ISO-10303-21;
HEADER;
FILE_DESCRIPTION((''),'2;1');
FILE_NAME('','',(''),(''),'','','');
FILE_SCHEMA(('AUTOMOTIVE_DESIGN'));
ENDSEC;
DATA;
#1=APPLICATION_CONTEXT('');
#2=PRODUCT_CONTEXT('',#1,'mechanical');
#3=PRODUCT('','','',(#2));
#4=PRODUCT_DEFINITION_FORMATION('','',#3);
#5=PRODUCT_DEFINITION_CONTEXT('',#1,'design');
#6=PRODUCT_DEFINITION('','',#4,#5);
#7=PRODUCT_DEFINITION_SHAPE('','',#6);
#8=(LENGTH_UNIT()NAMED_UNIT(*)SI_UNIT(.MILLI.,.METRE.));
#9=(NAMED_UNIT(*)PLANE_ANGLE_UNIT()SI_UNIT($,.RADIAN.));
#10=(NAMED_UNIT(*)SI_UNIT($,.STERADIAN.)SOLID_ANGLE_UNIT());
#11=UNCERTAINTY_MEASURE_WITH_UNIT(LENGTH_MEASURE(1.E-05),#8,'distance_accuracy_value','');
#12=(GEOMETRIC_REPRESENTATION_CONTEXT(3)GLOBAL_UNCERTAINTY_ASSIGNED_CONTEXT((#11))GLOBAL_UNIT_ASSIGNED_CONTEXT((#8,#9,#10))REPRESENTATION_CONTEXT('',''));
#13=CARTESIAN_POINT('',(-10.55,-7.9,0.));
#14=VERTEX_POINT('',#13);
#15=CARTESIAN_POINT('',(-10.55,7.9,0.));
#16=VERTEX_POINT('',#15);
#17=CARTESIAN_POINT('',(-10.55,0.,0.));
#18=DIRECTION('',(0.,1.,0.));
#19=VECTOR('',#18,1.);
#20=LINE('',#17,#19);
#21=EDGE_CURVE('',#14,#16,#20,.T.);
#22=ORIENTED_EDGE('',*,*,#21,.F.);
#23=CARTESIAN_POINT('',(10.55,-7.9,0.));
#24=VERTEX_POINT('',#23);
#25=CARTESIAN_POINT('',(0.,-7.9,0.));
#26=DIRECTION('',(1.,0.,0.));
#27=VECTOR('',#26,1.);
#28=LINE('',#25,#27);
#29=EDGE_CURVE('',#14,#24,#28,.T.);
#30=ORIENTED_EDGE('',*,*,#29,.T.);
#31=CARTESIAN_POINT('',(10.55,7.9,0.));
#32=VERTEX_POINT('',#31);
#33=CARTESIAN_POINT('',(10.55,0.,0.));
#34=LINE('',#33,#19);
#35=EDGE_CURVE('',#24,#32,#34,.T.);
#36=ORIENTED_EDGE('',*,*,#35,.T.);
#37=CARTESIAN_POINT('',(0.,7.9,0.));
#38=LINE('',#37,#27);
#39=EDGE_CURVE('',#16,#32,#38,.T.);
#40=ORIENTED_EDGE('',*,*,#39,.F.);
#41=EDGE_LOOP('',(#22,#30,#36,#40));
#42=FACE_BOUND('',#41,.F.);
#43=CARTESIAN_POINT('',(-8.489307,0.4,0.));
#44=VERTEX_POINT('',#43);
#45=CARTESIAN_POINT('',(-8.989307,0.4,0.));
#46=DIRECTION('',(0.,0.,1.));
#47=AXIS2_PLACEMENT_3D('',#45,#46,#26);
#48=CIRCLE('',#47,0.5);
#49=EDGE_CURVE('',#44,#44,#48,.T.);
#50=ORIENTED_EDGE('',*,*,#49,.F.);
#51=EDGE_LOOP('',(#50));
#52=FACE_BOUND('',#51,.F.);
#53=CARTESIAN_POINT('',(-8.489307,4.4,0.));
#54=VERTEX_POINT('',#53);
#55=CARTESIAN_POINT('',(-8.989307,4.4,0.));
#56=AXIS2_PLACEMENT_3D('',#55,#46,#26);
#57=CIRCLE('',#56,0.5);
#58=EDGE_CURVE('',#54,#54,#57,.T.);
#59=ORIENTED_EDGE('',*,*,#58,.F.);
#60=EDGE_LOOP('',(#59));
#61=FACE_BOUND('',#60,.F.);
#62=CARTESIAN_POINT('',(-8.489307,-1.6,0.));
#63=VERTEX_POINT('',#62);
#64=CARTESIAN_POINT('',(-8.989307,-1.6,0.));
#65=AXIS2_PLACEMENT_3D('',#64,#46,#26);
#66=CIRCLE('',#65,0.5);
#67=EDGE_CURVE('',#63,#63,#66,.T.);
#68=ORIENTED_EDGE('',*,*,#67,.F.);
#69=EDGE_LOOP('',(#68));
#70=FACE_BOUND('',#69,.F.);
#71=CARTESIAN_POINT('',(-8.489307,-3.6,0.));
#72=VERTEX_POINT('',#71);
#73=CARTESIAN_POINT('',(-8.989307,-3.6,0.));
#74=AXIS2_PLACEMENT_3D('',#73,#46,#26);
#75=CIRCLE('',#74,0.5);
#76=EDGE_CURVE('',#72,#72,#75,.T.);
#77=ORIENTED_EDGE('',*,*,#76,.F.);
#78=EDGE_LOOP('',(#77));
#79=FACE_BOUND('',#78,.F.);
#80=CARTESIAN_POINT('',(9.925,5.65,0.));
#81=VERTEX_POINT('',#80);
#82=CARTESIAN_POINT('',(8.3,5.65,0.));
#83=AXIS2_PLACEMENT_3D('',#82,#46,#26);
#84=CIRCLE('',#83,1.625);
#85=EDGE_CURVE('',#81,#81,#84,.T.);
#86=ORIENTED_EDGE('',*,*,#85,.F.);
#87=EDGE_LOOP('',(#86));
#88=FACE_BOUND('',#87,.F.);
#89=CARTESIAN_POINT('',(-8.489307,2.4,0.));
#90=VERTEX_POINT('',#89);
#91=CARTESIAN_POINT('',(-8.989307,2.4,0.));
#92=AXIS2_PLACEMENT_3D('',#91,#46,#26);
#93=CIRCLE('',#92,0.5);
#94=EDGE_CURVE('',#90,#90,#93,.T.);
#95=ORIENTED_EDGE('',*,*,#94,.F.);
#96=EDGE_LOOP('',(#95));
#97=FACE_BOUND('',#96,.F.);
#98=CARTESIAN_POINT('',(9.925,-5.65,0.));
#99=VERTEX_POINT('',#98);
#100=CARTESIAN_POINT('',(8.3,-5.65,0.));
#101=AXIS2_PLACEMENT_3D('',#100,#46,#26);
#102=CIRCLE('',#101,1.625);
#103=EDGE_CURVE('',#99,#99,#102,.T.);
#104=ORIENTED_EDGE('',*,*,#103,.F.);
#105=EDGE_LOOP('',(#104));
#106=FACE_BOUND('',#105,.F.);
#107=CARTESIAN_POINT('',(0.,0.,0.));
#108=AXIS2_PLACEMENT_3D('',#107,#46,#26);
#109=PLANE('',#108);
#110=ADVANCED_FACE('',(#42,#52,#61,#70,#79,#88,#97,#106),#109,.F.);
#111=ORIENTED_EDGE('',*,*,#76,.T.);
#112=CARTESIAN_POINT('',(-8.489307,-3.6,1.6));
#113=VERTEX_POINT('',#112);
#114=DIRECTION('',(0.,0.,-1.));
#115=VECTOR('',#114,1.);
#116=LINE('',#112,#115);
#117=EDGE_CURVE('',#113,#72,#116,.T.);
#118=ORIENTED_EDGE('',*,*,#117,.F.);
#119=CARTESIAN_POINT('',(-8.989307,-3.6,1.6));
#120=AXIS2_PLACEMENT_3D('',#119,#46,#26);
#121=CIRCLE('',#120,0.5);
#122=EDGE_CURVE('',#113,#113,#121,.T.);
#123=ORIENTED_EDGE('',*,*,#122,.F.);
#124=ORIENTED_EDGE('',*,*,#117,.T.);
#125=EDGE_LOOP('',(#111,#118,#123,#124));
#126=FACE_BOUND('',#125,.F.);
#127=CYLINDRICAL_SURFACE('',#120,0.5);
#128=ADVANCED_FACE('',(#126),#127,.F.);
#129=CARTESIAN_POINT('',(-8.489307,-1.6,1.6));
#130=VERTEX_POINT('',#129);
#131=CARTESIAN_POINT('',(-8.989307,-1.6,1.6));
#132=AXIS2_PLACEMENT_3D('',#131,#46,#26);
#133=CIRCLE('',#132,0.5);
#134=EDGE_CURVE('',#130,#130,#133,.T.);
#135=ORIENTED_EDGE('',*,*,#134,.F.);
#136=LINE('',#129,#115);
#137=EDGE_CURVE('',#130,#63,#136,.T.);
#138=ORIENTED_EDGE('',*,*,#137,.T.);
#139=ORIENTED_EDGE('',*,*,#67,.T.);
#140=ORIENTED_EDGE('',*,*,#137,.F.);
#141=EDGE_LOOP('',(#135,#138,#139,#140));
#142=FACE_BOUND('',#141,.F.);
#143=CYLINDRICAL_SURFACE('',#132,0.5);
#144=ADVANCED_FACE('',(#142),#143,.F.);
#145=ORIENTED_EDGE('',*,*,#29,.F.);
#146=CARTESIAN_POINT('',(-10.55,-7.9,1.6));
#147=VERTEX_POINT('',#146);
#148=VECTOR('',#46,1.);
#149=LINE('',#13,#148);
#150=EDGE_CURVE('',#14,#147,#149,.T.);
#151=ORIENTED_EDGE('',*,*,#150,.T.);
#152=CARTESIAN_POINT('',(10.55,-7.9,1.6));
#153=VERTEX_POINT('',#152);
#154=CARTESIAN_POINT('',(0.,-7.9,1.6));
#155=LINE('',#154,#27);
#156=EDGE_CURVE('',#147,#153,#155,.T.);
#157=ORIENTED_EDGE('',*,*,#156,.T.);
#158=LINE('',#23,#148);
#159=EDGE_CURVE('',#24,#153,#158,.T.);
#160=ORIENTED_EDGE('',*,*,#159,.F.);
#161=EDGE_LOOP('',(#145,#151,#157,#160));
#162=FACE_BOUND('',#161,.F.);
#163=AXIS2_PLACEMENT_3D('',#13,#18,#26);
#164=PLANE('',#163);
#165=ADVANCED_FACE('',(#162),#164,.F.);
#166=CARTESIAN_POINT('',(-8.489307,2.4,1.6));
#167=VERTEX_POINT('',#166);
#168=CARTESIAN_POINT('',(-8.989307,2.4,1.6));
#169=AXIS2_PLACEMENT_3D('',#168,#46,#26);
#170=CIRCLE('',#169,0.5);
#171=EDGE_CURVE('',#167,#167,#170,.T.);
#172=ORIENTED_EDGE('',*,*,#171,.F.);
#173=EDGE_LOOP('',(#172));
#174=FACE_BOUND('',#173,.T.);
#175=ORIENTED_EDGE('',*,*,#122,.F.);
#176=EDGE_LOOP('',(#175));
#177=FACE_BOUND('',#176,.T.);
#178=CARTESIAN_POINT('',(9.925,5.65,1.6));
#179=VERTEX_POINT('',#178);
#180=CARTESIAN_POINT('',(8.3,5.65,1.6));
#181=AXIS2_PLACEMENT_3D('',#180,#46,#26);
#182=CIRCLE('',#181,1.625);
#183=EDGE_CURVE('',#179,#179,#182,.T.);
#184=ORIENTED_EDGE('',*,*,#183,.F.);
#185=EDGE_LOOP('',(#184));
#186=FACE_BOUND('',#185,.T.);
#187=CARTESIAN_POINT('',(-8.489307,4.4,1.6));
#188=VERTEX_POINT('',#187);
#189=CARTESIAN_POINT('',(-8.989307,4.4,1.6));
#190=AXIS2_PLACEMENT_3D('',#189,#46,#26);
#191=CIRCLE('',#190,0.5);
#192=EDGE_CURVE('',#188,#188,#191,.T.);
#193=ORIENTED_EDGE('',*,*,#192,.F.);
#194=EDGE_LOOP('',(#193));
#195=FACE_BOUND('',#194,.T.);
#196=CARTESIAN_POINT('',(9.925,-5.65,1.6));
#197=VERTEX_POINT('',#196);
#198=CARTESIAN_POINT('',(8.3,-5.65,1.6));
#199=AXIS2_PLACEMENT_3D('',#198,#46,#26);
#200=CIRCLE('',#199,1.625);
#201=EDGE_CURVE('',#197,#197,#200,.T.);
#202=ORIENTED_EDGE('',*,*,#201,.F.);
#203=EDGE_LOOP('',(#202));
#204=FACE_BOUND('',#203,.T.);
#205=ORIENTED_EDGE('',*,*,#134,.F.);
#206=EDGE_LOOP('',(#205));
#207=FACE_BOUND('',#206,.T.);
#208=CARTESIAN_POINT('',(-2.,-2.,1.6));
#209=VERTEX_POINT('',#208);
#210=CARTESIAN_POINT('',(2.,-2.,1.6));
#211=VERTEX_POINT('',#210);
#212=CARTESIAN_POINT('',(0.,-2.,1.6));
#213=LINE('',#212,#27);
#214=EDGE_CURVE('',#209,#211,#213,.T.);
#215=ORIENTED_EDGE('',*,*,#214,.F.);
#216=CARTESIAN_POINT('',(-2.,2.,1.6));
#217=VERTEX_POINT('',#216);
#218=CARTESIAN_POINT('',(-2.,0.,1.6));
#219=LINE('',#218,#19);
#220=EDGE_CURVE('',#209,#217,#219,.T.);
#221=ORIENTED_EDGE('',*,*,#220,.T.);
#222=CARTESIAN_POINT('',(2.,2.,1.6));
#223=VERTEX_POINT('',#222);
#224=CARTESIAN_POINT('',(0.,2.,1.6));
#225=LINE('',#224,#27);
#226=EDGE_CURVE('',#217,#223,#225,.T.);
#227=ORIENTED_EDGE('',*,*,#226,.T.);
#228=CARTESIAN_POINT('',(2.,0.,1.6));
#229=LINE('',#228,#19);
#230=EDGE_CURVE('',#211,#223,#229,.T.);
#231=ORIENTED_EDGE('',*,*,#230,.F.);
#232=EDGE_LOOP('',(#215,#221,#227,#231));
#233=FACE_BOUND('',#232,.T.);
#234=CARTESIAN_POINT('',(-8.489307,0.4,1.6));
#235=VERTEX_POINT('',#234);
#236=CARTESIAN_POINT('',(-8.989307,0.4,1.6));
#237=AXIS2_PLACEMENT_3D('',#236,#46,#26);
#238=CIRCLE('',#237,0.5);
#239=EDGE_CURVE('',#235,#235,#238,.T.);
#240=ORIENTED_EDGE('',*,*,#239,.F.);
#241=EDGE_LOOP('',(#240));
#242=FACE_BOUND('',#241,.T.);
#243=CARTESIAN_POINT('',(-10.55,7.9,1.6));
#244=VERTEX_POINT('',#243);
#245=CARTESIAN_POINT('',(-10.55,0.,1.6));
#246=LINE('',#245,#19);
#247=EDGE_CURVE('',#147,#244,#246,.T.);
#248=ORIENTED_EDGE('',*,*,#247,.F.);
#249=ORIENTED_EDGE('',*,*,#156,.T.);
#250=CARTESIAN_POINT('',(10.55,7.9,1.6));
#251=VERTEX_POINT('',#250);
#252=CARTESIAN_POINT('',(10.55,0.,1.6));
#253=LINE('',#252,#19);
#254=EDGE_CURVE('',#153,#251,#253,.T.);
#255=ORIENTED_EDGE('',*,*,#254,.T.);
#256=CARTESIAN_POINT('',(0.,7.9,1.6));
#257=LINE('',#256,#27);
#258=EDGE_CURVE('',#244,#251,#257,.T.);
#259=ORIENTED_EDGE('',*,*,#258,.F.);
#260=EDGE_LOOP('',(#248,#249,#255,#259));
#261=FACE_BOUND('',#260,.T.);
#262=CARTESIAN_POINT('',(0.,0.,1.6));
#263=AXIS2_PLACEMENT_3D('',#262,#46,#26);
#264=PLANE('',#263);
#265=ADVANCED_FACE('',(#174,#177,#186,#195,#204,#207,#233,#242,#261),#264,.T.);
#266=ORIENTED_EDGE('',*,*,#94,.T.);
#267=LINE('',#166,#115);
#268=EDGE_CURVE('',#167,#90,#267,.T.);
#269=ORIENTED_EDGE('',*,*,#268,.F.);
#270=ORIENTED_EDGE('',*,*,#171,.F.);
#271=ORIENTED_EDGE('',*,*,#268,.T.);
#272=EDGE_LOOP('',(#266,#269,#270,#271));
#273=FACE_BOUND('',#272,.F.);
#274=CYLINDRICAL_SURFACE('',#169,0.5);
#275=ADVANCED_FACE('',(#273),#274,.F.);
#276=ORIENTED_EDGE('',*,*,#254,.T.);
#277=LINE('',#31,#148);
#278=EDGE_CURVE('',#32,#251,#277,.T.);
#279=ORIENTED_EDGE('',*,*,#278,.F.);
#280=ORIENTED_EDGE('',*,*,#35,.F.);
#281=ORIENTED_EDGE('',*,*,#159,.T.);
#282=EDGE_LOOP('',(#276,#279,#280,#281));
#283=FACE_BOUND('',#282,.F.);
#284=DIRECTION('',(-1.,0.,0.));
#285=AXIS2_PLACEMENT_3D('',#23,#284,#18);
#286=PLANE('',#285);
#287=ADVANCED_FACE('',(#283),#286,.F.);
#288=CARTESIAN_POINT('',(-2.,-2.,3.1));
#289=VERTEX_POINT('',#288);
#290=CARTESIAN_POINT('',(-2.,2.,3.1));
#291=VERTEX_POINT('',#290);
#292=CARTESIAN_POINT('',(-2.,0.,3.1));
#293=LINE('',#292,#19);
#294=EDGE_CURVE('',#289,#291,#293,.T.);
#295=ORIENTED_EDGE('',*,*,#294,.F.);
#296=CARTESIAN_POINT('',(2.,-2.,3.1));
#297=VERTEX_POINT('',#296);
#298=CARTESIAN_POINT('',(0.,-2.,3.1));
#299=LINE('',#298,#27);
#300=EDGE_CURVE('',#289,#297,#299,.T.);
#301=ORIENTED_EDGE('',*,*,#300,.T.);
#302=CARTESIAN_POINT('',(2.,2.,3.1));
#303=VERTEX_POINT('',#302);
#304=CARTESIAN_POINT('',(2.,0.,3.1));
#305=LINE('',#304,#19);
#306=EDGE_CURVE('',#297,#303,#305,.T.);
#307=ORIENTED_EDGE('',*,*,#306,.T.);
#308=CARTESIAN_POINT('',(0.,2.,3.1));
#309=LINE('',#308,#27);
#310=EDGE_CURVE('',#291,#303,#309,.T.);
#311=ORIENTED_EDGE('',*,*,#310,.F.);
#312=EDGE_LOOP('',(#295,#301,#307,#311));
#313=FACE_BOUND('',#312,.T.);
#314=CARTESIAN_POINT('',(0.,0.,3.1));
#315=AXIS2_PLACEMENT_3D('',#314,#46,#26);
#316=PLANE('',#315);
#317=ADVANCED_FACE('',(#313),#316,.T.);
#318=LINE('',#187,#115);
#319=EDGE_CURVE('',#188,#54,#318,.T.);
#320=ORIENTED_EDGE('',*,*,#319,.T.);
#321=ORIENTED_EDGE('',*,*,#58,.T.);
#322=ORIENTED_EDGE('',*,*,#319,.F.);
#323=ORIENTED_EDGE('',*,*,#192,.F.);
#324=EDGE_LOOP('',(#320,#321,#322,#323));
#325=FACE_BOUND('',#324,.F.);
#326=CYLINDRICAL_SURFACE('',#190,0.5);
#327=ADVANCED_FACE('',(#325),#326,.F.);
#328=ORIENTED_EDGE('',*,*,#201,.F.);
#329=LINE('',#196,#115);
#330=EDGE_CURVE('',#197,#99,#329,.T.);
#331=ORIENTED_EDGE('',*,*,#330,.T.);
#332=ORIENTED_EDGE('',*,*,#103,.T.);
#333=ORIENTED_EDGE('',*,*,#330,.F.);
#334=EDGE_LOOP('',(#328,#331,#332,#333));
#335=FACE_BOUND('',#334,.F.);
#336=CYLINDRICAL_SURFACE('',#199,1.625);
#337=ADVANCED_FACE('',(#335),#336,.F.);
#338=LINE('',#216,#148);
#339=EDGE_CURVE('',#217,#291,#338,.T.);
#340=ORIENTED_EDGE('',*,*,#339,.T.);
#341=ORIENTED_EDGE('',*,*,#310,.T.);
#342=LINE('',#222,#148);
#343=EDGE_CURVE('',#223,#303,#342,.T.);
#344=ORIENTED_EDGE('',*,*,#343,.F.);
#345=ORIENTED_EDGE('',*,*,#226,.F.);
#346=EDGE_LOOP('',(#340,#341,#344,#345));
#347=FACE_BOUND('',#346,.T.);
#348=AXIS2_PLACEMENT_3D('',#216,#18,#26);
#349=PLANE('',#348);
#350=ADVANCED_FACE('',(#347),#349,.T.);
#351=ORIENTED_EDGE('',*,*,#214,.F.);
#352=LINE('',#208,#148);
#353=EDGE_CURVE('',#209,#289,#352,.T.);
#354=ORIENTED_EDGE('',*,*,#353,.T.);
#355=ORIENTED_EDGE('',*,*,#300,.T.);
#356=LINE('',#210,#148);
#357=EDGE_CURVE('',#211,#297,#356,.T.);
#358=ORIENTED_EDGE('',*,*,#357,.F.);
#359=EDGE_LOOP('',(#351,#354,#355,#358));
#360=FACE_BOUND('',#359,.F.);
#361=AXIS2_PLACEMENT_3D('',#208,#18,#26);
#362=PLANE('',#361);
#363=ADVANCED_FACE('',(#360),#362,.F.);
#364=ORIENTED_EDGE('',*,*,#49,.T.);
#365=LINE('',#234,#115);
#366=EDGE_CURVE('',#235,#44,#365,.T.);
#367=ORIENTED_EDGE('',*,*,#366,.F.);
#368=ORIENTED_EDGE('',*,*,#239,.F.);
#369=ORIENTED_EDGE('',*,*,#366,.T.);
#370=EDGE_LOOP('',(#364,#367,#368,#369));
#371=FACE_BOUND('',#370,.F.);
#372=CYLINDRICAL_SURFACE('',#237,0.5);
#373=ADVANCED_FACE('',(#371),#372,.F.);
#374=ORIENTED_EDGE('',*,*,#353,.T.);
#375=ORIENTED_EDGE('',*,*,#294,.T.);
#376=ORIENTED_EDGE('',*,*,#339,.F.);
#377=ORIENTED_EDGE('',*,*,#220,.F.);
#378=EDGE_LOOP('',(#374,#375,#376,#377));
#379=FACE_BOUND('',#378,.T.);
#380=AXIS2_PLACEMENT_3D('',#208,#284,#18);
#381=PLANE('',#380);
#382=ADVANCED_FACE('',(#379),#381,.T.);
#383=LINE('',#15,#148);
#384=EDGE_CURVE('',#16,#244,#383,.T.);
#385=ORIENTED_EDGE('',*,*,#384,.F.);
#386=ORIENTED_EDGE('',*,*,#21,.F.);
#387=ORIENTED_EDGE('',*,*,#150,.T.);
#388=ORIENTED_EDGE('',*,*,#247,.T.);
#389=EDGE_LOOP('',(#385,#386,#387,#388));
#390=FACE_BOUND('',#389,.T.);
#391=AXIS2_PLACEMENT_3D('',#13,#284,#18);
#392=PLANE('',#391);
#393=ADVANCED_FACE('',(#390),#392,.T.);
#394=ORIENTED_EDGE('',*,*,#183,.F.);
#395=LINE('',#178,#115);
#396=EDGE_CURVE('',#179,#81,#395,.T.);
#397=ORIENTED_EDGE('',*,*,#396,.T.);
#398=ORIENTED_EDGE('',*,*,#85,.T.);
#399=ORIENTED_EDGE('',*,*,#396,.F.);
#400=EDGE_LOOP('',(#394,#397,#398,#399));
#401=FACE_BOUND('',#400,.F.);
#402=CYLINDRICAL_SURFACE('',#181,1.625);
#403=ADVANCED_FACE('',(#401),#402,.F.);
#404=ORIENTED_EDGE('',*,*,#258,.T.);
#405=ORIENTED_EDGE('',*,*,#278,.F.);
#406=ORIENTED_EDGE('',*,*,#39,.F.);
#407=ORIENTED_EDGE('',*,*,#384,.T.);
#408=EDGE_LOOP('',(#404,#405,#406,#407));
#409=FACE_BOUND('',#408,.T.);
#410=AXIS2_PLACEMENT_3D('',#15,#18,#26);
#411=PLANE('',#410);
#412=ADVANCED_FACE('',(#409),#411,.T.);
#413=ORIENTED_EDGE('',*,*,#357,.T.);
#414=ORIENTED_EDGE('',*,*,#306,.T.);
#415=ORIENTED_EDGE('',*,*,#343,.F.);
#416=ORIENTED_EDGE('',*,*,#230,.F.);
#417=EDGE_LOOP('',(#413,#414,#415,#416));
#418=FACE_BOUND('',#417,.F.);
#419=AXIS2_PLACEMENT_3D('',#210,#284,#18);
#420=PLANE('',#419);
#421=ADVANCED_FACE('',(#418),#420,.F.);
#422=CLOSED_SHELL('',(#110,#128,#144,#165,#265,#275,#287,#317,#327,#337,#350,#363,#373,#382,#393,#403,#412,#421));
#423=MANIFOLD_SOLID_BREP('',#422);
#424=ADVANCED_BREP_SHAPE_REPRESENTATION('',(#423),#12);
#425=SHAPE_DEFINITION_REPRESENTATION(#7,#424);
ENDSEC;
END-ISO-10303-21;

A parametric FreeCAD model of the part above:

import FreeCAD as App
import Part
import Sketcher
from FreeCAD import Vector
Q = App.Units.Quantity


def add_polygon(sketch, points):
    """Adds a closed chain of lines whose ends are joined by coincident constraints."""
    first, n = sketch.GeometryCount, len(points)
    for a, b in zip(points, points[1:] + points[:1]):
        sketch.addGeometry(Part.LineSegment(App.Vector(*a, 0), App.Vector(*b, 0)), False)
    for i in range(n):
        sketch.addConstraint(Sketcher.Constraint("Coincident", first + i, 2, first + (i + 1) % n, 1))

doc = App.newDocument("Part")
body = doc.addObject("PartDesign::Body", "Body")

# Sketch on XY plane
sketch1 = body.newObject("Sketcher::SketchObject", "Sketch")
sketch1.AttachmentSupport = (doc.getObject("XY_Plane"), [""])
sketch1.MapMode = "FlatFace"
add_polygon(sketch1, [(-11, 8), (-11, -8), (11, -8), (11, 8)])  # lines 0-3
sketch1.addConstraint([
    Sketcher.Constraint("Vertical", 0),
    Sketcher.Constraint("Horizontal", 1),
    Sketcher.Constraint("Vertical", 2),
    Sketcher.Constraint("Horizontal", 3),
    Sketcher.Constraint("Symmetric", 0, 2, 2, 2, -1, 1),
    Sketcher.Constraint("DistanceX", 1, 1, 1, 2, Q("21.1 mm")),
    Sketcher.Constraint("DistanceY", 0, 2, 0, 1, Q("15.8 mm")),
])
pad1 = body.newObject("PartDesign::Pad", "Pad")
pad1.Profile = sketch1
pad1.Length = 1.6

# Sketch on XY plane
sketch2 = body.newObject("Sketcher::SketchObject", "Sketch001")
sketch2.AttachmentSupport = (doc.getObject("XY_Plane"), [""])
sketch2.MapMode = "FlatFace"
sketch2.AttachmentOffset = App.Placement(Vector(0, 0, 1.6), App.Rotation())
sketch2.addGeometry([
    Part.Circle(Vector(8.3, 5.7, 0), Vector(0, 0, 1), 1.6),
    Part.Circle(Vector(8.3, -5.7, 0), Vector(0, 0, 1), 1.6),
], False)
sketch2.addConstraint([
    Sketcher.Constraint("Equal", 0, 1),
    Sketcher.Constraint("Symmetric", 0, 3, 1, 3, -1),
    Sketcher.Constraint("Diameter", 0, Q("3.25 mm")),
    Sketcher.Constraint("DistanceX", -1, 1, 0, 3, Q("8.3 mm")),
    Sketcher.Constraint("DistanceY", 1, 3, 0, 3, Q("11.3 mm")),
])
pocket1 = body.newObject("PartDesign::Pocket", "Pocket")
pocket1.Profile = sketch2
pocket1.Length = 25

# Sketch on XY plane
sketch3 = body.newObject("Sketcher::SketchObject", "Sketch002")
sketch3.AttachmentSupport = (doc.getObject("XY_Plane"), [""])
sketch3.MapMode = "FlatFace"
sketch3.AttachmentOffset = App.Placement(Vector(0, 0, 1.6), App.Rotation())
add_polygon(sketch3, [(-2, 2), (-2, -2), (2, -2), (2, 2)])  # lines 0-3
sketch3.addConstraint([
    Sketcher.Constraint("Vertical", 0),
    Sketcher.Constraint("Horizontal", 1),
    Sketcher.Constraint("Vertical", 2),
    Sketcher.Constraint("Horizontal", 3),
    Sketcher.Constraint("Symmetric", 0, 2, 2, 2, -1, 1),
    Sketcher.Constraint("Equal", 3, 0),
    Sketcher.Constraint("DistanceX", 1, 1, 1, 2, Q("4 mm")),
])
pad2 = body.newObject("PartDesign::Pad", "Pad001")
pad2.Profile = sketch3
pad2.Length = 1.5

# Sketch on XY plane
sketch4 = body.newObject("Sketcher::SketchObject", "Sketch003")
sketch4.AttachmentSupport = (doc.getObject("XY_Plane"), [""])
sketch4.MapMode = "FlatFace"
sketch4.AttachmentOffset = App.Placement(Vector(0, 0, 1.6), App.Rotation())
sketch4.addGeometry([
    Part.Circle(Vector(-9, 4.4, 0), Vector(0, 0, 1), 0.5),  # 0
    Part.Circle(Vector(-9, 2.4, 0), Vector(0, 0, 1), 0.5),  # 1
    Part.Circle(Vector(-9, 0.4, 0), Vector(0, 0, 1), 0.5),  # 2
    Part.Circle(Vector(-9, -1.6, 0), Vector(0, 0, 1), 0.5),  # 3
    Part.Circle(Vector(-9, -3.6, 0), Vector(0, 0, 1), 0.5),  # 4
], False)
sketch4.addConstraint([
    Sketcher.Constraint("Equal", 0, 1),
    Sketcher.Constraint("Equal", 1, 2),
    Sketcher.Constraint("Equal", 2, 3),
    Sketcher.Constraint("Equal", 3, 4),
    Sketcher.Constraint("Vertical", 0, 3, 1, 3),
    Sketcher.Constraint("Vertical", 1, 3, 2, 3),
    Sketcher.Constraint("Vertical", 2, 3, 3, 3),
    Sketcher.Constraint("Vertical", 3, 3, 4, 3),
    Sketcher.Constraint("Diameter", 0, Q("1 mm")),
    Sketcher.Constraint("DistanceY", 1, 3, 0, 3, Q("2 mm")),
    Sketcher.Constraint("DistanceY", 2, 3, 1, 3, Q("2 mm")),
    Sketcher.Constraint("DistanceY", 3, 3, 2, 3, Q("2 mm")),
    Sketcher.Constraint("DistanceY", 4, 3, 3, 3, Q("2 mm")),
    Sketcher.Constraint("DistanceY", -1, 1, 0, 3, Q("4.4 mm")),
    Sketcher.Constraint("DistanceX", 0, 3, -1, 1, Q("8.989307 mm")),
])
pocket2 = body.newObject("PartDesign::Pocket", "Pocket001")
pocket2.Profile = sketch4
pocket2.Length = 25

doc.recompute()
